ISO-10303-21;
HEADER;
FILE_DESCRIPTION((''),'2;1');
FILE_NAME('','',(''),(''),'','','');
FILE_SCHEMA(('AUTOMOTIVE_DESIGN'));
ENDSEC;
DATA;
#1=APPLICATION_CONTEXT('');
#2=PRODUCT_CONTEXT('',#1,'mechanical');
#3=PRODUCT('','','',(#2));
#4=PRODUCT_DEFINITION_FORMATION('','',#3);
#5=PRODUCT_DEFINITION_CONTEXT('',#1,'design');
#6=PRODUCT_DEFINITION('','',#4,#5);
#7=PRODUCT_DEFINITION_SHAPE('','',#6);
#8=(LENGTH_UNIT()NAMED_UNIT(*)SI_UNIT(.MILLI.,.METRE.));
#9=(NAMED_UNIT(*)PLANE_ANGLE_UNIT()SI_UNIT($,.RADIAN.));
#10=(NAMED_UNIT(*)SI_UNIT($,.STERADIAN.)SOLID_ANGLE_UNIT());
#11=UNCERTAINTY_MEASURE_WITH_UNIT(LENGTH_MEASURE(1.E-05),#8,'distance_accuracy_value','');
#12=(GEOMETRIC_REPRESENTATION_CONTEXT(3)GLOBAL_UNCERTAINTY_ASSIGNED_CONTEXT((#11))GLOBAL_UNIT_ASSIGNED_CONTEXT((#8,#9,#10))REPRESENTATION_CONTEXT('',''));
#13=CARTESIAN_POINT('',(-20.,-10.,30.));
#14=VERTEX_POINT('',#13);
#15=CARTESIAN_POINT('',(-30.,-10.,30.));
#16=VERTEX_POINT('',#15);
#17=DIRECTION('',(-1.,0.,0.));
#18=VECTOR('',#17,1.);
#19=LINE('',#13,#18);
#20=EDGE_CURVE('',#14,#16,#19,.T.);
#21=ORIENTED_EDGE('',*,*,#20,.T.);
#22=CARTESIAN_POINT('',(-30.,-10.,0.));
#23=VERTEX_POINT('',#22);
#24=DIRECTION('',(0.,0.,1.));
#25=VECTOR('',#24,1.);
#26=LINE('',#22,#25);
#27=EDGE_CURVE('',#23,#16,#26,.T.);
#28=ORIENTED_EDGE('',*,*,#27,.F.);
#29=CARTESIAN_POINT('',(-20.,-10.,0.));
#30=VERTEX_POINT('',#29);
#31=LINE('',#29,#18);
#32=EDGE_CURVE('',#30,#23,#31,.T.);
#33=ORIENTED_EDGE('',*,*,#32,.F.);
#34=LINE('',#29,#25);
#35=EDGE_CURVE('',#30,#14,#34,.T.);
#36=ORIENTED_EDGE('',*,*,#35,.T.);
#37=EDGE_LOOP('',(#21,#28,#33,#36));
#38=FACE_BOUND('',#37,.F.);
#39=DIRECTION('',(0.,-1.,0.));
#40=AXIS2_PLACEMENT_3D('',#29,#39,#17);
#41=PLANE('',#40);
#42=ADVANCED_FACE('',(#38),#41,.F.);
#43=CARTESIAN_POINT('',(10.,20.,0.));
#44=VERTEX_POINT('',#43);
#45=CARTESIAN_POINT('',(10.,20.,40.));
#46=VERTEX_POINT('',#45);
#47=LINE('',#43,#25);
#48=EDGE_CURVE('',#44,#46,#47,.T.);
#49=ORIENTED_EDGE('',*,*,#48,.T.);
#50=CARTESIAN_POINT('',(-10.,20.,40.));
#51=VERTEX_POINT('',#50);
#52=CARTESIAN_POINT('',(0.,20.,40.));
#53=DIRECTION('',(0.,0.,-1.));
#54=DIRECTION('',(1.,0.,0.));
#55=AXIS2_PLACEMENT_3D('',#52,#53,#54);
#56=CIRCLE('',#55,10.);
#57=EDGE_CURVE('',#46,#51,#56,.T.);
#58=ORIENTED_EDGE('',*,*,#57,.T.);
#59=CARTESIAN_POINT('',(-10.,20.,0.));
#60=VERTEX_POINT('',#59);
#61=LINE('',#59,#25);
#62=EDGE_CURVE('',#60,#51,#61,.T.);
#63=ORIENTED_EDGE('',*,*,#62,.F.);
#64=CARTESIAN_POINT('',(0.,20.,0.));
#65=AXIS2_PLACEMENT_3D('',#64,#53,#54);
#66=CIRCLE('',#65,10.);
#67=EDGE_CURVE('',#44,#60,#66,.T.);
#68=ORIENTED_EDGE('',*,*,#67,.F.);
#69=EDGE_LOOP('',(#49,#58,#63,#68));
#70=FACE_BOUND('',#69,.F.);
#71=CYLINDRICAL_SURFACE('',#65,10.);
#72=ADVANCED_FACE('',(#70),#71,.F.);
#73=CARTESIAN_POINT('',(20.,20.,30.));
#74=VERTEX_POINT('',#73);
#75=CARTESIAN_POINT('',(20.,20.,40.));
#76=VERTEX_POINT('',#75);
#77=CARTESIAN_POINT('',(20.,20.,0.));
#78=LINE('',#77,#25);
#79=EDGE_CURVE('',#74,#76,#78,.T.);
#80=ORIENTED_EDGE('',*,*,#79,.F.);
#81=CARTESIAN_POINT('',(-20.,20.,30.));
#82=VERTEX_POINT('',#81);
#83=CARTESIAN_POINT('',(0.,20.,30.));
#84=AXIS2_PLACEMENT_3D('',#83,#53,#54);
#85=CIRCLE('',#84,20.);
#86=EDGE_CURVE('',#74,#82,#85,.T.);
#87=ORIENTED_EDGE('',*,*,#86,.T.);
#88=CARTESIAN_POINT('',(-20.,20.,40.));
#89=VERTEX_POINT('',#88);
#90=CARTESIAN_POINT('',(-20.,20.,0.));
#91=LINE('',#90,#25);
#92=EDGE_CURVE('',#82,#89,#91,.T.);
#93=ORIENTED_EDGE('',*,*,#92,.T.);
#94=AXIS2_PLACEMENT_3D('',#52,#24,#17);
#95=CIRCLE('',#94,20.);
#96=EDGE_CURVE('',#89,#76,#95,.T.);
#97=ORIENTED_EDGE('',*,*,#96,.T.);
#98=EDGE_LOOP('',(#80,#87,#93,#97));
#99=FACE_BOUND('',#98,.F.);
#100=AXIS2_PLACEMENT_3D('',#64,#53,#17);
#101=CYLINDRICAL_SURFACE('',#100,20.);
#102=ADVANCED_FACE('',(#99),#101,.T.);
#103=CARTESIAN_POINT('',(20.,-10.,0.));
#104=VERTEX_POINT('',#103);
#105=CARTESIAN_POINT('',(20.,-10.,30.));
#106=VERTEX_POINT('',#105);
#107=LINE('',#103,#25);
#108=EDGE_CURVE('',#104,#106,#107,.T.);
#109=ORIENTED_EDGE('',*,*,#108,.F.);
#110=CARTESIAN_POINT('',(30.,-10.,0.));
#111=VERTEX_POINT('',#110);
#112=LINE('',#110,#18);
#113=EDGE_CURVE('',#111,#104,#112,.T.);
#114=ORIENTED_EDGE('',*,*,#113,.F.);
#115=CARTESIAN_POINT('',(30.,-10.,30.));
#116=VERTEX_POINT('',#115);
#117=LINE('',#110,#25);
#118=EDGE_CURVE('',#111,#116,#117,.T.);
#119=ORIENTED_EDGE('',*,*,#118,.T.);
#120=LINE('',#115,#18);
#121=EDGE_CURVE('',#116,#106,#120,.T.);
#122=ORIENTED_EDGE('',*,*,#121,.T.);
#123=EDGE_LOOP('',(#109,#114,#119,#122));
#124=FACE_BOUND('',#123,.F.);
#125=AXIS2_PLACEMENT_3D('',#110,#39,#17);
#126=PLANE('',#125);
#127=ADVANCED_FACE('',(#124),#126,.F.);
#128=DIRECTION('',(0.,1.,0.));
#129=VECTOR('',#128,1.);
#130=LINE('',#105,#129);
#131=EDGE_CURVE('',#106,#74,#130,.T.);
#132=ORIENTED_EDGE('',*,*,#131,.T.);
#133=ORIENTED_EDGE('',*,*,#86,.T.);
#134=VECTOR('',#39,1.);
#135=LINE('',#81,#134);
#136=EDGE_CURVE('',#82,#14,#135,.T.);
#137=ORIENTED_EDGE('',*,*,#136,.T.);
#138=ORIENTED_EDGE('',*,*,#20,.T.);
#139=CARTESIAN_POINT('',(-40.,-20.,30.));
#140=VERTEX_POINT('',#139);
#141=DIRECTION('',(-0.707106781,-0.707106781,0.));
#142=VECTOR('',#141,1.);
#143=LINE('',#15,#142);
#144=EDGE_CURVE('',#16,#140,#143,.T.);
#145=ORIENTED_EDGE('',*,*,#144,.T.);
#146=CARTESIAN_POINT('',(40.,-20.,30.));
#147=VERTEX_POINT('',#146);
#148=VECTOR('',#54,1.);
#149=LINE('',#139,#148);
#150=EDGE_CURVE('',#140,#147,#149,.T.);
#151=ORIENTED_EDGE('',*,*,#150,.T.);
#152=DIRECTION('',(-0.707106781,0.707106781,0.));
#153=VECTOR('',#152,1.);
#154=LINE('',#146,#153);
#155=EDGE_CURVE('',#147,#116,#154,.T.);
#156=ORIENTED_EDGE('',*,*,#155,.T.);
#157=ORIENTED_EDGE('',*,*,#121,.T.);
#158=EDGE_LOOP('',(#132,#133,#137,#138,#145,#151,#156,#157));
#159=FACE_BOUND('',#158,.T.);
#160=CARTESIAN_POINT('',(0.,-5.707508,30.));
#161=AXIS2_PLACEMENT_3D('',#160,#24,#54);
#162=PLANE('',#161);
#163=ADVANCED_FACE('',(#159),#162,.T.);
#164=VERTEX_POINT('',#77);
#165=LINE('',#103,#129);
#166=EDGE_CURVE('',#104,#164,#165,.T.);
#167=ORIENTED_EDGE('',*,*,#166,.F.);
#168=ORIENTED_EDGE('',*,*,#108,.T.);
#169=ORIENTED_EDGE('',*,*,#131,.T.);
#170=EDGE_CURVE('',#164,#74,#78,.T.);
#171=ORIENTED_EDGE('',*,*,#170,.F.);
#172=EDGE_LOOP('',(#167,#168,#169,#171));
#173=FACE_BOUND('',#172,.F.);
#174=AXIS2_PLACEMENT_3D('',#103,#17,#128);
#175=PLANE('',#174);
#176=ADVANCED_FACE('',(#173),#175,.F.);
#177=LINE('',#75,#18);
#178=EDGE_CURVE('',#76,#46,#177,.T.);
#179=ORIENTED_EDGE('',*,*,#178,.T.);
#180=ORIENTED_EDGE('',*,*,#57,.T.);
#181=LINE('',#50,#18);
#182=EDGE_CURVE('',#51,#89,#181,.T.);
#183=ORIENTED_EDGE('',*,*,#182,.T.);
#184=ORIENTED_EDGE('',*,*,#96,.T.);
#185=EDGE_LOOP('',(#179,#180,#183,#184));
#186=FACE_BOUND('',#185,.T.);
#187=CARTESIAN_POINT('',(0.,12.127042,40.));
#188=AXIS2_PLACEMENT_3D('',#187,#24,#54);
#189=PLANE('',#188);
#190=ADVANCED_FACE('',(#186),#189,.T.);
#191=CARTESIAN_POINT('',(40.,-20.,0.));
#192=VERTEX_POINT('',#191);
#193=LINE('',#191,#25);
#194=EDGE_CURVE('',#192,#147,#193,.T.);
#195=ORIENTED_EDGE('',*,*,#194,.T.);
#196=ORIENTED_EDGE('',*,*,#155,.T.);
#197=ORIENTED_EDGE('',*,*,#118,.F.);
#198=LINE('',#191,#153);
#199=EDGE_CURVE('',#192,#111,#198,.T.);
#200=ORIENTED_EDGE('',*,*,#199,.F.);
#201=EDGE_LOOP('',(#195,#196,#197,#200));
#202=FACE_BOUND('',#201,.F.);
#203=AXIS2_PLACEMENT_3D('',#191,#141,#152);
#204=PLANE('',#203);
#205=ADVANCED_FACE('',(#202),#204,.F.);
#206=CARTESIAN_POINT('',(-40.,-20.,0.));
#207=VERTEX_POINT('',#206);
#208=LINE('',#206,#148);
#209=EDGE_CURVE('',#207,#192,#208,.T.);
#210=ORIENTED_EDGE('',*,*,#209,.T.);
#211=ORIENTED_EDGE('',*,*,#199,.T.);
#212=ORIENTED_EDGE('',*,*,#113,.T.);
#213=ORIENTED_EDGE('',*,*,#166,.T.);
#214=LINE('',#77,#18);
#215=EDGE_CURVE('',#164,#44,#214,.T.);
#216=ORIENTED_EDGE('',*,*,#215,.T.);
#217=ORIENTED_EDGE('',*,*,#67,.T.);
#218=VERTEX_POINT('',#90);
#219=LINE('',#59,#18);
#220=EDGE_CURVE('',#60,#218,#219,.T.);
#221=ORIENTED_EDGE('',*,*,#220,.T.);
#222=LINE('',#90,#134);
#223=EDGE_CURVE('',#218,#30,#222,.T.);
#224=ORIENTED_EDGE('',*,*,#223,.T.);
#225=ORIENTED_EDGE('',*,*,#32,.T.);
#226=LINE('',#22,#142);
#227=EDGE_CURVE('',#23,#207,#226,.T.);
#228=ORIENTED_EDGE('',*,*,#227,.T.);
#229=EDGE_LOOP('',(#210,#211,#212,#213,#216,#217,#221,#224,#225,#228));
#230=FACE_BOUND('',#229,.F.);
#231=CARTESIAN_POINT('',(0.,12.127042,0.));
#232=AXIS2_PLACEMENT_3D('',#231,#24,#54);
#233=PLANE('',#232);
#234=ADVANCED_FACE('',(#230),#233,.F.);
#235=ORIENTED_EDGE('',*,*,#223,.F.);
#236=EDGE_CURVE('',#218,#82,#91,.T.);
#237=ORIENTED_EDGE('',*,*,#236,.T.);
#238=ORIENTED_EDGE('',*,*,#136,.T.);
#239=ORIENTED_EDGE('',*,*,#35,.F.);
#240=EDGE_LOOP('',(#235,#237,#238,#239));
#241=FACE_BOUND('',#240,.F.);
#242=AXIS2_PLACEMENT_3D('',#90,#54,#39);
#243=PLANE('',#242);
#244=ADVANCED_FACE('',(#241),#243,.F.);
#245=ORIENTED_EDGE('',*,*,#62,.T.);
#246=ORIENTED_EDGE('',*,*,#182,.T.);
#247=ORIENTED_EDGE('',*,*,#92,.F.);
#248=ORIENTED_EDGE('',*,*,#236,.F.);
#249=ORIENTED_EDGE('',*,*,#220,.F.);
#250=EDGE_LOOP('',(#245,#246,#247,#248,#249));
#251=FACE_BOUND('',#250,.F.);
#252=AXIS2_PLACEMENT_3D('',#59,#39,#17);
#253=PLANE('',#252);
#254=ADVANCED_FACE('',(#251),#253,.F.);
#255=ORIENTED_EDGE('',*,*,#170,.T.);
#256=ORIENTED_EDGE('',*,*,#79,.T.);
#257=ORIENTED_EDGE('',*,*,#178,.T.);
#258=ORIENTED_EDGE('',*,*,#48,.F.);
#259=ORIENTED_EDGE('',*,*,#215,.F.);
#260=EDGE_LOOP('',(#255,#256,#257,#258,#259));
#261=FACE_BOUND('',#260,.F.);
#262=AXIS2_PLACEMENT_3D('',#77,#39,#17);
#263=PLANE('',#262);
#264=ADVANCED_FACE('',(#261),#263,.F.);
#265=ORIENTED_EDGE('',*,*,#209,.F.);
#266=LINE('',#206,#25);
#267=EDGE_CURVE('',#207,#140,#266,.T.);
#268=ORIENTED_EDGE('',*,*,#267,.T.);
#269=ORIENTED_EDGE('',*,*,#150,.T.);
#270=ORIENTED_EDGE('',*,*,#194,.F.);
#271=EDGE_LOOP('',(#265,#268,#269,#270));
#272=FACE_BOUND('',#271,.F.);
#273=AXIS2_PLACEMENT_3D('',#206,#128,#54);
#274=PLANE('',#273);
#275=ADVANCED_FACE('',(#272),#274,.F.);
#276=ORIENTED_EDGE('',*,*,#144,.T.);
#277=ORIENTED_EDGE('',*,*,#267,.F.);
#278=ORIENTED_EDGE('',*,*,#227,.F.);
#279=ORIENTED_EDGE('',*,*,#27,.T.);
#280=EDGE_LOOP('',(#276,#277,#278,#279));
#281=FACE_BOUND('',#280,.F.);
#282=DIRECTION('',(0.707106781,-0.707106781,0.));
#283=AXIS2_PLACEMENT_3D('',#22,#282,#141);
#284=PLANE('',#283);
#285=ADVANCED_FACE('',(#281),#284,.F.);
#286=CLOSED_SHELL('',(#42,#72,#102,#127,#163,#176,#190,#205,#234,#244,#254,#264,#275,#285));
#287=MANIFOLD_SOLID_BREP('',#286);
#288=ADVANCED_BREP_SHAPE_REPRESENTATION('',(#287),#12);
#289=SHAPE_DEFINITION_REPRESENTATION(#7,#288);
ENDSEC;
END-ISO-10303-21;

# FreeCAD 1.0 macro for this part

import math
import FreeCAD as App
import Part
import Sketcher
from FreeCAD import Vector

doc = App.newDocument("Part")
body = doc.addObject("PartDesign::Body", "Body")

# Sketch on XY plane
sketch1 = body.newObject("Sketcher::SketchObject", "Sketch")
sketch1.AttachmentSupport = (doc.getObject("XY_Plane"), [""])
sketch1.MapMode = "FlatFace"
sketch1.addGeometry([
    Part.LineSegment(Vector(-30, -10, 0), Vector(-40, -20, 0)),  # 0
    Part.LineSegment(Vector(-40, -20, 0), Vector(40, -20, 0)),  # 1
    Part.LineSegment(Vector(40, -20, 0), Vector(30, -10, 0)),  # 2
    Part.LineSegment(Vector(30, -10, 0), Vector(20, -10, 0)),  # 3
    Part.LineSegment(Vector(20, -10, 0), Vector(20, 20, 0)),  # 4
    Part.ArcOfCircle(Part.Circle(Vector(0, 20, 0), Vector(0, 0, 1), 20), math.radians(180), math.radians(360)),  # 5
    Part.LineSegment(Vector(-20, 20, 0), Vector(-20, -10, 0)),  # 6
    Part.LineSegment(Vector(-20, -10, 0), Vector(-30, -10, 0)),  # 7
], False)
sketch1.addConstraint([
    Sketcher.Constraint("Coincident", 0, 2, 1, 1),
    Sketcher.Constraint("Coincident", 1, 2, 2, 1),
    Sketcher.Constraint("Coincident", 2, 2, 3, 1),
    Sketcher.Constraint("Coincident", 3, 2, 4, 1),
    Sketcher.Constraint("Tangent", 4, 2, 5, 2),
    Sketcher.Constraint("Tangent", 5, 1, 6, 1),
    Sketcher.Constraint("Coincident", 6, 2, 7, 1),
    Sketcher.Constraint("Coincident", 7, 2, 0, 1),
    Sketcher.Constraint("Horizontal", 1),
    Sketcher.Constraint("Horizontal", 3),
    Sketcher.Constraint("Vertical", 4),
    Sketcher.Constraint("Vertical", 6),
    Sketcher.Constraint("Horizontal", 7),
    Sketcher.Constraint("Symmetric", 3, 2, 6, 2, -2),
    Sketcher.Constraint("Perpendicular", 0, 2),
    Sketcher.Constraint("Equal", 3, 7),
    Sketcher.Constraint("Equal", 0, 2),
    Sketcher.Constraint("Radius", 5, 20.0),
    Sketcher.Constraint("DistanceX", 1, 1, 1, 2, 80.0),
    Sketcher.Constraint("DistanceX", 3, 2, 3, 1, 10.0),
    Sketcher.Constraint("DistanceY", 4, 1, 4, 2, 30.0),
    Sketcher.Constraint("DistanceY", -1, 1, 5, 3, 20.0),
])
pad1 = body.newObject("PartDesign::Pad", "Pad")
pad1.Profile = sketch1
pad1.Length = 30

# Sketch on XY plane
sketch2 = body.newObject("Sketcher::SketchObject", "Sketch001")
sketch2.AttachmentSupport = (doc.getObject("XY_Plane"), [""])
sketch2.MapMode = "FlatFace"
sketch2.addGeometry([
    Part.LineSegment(Vector(-10, 20, 0), Vector(-20, 20, 0)),
    Part.ArcOfCircle(Part.Circle(Vector(0, 20, 0), Vector(0, 0, 1), 20), math.radians(180), math.radians(360)),
    Part.LineSegment(Vector(20, 20, 0), Vector(10, 20, 0)),
    Part.ArcOfCircle(Part.Circle(Vector(0, 20, 0), Vector(0, 0, 1), 10), math.radians(180), math.radians(360)),
], False)
sketch2.addConstraint([
    Sketcher.Constraint("Coincident", 0, 2, 1, 1),
    Sketcher.Constraint("Coincident", 1, 2, 2, 1),
    Sketcher.Constraint("Coincident", 2, 2, 3, 2),
    Sketcher.Constraint("Coincident", 3, 1, 0, 1),
    Sketcher.Constraint("Horizontal", 0),
    Sketcher.Constraint("Horizontal", 2),
    Sketcher.Constraint("Coincident", 3, 3, 1, 3),
    Sketcher.Constraint("Symmetric", 0, 2, 1, 2, -2),
    Sketcher.Constraint("Horizontal", 3, 3, 0, 2),
    Sketcher.Constraint("Radius", 1, 20.0),
    Sketcher.Constraint("Radius", 3, 10.0),
    Sketcher.Constraint("DistanceY", -1, 1, 1, 3, 20.0),
])
pad2 = body.newObject("PartDesign::Pad", "Pad001")
pad2.Profile = sketch2
pad2.Length = 40

doc.recompute()
